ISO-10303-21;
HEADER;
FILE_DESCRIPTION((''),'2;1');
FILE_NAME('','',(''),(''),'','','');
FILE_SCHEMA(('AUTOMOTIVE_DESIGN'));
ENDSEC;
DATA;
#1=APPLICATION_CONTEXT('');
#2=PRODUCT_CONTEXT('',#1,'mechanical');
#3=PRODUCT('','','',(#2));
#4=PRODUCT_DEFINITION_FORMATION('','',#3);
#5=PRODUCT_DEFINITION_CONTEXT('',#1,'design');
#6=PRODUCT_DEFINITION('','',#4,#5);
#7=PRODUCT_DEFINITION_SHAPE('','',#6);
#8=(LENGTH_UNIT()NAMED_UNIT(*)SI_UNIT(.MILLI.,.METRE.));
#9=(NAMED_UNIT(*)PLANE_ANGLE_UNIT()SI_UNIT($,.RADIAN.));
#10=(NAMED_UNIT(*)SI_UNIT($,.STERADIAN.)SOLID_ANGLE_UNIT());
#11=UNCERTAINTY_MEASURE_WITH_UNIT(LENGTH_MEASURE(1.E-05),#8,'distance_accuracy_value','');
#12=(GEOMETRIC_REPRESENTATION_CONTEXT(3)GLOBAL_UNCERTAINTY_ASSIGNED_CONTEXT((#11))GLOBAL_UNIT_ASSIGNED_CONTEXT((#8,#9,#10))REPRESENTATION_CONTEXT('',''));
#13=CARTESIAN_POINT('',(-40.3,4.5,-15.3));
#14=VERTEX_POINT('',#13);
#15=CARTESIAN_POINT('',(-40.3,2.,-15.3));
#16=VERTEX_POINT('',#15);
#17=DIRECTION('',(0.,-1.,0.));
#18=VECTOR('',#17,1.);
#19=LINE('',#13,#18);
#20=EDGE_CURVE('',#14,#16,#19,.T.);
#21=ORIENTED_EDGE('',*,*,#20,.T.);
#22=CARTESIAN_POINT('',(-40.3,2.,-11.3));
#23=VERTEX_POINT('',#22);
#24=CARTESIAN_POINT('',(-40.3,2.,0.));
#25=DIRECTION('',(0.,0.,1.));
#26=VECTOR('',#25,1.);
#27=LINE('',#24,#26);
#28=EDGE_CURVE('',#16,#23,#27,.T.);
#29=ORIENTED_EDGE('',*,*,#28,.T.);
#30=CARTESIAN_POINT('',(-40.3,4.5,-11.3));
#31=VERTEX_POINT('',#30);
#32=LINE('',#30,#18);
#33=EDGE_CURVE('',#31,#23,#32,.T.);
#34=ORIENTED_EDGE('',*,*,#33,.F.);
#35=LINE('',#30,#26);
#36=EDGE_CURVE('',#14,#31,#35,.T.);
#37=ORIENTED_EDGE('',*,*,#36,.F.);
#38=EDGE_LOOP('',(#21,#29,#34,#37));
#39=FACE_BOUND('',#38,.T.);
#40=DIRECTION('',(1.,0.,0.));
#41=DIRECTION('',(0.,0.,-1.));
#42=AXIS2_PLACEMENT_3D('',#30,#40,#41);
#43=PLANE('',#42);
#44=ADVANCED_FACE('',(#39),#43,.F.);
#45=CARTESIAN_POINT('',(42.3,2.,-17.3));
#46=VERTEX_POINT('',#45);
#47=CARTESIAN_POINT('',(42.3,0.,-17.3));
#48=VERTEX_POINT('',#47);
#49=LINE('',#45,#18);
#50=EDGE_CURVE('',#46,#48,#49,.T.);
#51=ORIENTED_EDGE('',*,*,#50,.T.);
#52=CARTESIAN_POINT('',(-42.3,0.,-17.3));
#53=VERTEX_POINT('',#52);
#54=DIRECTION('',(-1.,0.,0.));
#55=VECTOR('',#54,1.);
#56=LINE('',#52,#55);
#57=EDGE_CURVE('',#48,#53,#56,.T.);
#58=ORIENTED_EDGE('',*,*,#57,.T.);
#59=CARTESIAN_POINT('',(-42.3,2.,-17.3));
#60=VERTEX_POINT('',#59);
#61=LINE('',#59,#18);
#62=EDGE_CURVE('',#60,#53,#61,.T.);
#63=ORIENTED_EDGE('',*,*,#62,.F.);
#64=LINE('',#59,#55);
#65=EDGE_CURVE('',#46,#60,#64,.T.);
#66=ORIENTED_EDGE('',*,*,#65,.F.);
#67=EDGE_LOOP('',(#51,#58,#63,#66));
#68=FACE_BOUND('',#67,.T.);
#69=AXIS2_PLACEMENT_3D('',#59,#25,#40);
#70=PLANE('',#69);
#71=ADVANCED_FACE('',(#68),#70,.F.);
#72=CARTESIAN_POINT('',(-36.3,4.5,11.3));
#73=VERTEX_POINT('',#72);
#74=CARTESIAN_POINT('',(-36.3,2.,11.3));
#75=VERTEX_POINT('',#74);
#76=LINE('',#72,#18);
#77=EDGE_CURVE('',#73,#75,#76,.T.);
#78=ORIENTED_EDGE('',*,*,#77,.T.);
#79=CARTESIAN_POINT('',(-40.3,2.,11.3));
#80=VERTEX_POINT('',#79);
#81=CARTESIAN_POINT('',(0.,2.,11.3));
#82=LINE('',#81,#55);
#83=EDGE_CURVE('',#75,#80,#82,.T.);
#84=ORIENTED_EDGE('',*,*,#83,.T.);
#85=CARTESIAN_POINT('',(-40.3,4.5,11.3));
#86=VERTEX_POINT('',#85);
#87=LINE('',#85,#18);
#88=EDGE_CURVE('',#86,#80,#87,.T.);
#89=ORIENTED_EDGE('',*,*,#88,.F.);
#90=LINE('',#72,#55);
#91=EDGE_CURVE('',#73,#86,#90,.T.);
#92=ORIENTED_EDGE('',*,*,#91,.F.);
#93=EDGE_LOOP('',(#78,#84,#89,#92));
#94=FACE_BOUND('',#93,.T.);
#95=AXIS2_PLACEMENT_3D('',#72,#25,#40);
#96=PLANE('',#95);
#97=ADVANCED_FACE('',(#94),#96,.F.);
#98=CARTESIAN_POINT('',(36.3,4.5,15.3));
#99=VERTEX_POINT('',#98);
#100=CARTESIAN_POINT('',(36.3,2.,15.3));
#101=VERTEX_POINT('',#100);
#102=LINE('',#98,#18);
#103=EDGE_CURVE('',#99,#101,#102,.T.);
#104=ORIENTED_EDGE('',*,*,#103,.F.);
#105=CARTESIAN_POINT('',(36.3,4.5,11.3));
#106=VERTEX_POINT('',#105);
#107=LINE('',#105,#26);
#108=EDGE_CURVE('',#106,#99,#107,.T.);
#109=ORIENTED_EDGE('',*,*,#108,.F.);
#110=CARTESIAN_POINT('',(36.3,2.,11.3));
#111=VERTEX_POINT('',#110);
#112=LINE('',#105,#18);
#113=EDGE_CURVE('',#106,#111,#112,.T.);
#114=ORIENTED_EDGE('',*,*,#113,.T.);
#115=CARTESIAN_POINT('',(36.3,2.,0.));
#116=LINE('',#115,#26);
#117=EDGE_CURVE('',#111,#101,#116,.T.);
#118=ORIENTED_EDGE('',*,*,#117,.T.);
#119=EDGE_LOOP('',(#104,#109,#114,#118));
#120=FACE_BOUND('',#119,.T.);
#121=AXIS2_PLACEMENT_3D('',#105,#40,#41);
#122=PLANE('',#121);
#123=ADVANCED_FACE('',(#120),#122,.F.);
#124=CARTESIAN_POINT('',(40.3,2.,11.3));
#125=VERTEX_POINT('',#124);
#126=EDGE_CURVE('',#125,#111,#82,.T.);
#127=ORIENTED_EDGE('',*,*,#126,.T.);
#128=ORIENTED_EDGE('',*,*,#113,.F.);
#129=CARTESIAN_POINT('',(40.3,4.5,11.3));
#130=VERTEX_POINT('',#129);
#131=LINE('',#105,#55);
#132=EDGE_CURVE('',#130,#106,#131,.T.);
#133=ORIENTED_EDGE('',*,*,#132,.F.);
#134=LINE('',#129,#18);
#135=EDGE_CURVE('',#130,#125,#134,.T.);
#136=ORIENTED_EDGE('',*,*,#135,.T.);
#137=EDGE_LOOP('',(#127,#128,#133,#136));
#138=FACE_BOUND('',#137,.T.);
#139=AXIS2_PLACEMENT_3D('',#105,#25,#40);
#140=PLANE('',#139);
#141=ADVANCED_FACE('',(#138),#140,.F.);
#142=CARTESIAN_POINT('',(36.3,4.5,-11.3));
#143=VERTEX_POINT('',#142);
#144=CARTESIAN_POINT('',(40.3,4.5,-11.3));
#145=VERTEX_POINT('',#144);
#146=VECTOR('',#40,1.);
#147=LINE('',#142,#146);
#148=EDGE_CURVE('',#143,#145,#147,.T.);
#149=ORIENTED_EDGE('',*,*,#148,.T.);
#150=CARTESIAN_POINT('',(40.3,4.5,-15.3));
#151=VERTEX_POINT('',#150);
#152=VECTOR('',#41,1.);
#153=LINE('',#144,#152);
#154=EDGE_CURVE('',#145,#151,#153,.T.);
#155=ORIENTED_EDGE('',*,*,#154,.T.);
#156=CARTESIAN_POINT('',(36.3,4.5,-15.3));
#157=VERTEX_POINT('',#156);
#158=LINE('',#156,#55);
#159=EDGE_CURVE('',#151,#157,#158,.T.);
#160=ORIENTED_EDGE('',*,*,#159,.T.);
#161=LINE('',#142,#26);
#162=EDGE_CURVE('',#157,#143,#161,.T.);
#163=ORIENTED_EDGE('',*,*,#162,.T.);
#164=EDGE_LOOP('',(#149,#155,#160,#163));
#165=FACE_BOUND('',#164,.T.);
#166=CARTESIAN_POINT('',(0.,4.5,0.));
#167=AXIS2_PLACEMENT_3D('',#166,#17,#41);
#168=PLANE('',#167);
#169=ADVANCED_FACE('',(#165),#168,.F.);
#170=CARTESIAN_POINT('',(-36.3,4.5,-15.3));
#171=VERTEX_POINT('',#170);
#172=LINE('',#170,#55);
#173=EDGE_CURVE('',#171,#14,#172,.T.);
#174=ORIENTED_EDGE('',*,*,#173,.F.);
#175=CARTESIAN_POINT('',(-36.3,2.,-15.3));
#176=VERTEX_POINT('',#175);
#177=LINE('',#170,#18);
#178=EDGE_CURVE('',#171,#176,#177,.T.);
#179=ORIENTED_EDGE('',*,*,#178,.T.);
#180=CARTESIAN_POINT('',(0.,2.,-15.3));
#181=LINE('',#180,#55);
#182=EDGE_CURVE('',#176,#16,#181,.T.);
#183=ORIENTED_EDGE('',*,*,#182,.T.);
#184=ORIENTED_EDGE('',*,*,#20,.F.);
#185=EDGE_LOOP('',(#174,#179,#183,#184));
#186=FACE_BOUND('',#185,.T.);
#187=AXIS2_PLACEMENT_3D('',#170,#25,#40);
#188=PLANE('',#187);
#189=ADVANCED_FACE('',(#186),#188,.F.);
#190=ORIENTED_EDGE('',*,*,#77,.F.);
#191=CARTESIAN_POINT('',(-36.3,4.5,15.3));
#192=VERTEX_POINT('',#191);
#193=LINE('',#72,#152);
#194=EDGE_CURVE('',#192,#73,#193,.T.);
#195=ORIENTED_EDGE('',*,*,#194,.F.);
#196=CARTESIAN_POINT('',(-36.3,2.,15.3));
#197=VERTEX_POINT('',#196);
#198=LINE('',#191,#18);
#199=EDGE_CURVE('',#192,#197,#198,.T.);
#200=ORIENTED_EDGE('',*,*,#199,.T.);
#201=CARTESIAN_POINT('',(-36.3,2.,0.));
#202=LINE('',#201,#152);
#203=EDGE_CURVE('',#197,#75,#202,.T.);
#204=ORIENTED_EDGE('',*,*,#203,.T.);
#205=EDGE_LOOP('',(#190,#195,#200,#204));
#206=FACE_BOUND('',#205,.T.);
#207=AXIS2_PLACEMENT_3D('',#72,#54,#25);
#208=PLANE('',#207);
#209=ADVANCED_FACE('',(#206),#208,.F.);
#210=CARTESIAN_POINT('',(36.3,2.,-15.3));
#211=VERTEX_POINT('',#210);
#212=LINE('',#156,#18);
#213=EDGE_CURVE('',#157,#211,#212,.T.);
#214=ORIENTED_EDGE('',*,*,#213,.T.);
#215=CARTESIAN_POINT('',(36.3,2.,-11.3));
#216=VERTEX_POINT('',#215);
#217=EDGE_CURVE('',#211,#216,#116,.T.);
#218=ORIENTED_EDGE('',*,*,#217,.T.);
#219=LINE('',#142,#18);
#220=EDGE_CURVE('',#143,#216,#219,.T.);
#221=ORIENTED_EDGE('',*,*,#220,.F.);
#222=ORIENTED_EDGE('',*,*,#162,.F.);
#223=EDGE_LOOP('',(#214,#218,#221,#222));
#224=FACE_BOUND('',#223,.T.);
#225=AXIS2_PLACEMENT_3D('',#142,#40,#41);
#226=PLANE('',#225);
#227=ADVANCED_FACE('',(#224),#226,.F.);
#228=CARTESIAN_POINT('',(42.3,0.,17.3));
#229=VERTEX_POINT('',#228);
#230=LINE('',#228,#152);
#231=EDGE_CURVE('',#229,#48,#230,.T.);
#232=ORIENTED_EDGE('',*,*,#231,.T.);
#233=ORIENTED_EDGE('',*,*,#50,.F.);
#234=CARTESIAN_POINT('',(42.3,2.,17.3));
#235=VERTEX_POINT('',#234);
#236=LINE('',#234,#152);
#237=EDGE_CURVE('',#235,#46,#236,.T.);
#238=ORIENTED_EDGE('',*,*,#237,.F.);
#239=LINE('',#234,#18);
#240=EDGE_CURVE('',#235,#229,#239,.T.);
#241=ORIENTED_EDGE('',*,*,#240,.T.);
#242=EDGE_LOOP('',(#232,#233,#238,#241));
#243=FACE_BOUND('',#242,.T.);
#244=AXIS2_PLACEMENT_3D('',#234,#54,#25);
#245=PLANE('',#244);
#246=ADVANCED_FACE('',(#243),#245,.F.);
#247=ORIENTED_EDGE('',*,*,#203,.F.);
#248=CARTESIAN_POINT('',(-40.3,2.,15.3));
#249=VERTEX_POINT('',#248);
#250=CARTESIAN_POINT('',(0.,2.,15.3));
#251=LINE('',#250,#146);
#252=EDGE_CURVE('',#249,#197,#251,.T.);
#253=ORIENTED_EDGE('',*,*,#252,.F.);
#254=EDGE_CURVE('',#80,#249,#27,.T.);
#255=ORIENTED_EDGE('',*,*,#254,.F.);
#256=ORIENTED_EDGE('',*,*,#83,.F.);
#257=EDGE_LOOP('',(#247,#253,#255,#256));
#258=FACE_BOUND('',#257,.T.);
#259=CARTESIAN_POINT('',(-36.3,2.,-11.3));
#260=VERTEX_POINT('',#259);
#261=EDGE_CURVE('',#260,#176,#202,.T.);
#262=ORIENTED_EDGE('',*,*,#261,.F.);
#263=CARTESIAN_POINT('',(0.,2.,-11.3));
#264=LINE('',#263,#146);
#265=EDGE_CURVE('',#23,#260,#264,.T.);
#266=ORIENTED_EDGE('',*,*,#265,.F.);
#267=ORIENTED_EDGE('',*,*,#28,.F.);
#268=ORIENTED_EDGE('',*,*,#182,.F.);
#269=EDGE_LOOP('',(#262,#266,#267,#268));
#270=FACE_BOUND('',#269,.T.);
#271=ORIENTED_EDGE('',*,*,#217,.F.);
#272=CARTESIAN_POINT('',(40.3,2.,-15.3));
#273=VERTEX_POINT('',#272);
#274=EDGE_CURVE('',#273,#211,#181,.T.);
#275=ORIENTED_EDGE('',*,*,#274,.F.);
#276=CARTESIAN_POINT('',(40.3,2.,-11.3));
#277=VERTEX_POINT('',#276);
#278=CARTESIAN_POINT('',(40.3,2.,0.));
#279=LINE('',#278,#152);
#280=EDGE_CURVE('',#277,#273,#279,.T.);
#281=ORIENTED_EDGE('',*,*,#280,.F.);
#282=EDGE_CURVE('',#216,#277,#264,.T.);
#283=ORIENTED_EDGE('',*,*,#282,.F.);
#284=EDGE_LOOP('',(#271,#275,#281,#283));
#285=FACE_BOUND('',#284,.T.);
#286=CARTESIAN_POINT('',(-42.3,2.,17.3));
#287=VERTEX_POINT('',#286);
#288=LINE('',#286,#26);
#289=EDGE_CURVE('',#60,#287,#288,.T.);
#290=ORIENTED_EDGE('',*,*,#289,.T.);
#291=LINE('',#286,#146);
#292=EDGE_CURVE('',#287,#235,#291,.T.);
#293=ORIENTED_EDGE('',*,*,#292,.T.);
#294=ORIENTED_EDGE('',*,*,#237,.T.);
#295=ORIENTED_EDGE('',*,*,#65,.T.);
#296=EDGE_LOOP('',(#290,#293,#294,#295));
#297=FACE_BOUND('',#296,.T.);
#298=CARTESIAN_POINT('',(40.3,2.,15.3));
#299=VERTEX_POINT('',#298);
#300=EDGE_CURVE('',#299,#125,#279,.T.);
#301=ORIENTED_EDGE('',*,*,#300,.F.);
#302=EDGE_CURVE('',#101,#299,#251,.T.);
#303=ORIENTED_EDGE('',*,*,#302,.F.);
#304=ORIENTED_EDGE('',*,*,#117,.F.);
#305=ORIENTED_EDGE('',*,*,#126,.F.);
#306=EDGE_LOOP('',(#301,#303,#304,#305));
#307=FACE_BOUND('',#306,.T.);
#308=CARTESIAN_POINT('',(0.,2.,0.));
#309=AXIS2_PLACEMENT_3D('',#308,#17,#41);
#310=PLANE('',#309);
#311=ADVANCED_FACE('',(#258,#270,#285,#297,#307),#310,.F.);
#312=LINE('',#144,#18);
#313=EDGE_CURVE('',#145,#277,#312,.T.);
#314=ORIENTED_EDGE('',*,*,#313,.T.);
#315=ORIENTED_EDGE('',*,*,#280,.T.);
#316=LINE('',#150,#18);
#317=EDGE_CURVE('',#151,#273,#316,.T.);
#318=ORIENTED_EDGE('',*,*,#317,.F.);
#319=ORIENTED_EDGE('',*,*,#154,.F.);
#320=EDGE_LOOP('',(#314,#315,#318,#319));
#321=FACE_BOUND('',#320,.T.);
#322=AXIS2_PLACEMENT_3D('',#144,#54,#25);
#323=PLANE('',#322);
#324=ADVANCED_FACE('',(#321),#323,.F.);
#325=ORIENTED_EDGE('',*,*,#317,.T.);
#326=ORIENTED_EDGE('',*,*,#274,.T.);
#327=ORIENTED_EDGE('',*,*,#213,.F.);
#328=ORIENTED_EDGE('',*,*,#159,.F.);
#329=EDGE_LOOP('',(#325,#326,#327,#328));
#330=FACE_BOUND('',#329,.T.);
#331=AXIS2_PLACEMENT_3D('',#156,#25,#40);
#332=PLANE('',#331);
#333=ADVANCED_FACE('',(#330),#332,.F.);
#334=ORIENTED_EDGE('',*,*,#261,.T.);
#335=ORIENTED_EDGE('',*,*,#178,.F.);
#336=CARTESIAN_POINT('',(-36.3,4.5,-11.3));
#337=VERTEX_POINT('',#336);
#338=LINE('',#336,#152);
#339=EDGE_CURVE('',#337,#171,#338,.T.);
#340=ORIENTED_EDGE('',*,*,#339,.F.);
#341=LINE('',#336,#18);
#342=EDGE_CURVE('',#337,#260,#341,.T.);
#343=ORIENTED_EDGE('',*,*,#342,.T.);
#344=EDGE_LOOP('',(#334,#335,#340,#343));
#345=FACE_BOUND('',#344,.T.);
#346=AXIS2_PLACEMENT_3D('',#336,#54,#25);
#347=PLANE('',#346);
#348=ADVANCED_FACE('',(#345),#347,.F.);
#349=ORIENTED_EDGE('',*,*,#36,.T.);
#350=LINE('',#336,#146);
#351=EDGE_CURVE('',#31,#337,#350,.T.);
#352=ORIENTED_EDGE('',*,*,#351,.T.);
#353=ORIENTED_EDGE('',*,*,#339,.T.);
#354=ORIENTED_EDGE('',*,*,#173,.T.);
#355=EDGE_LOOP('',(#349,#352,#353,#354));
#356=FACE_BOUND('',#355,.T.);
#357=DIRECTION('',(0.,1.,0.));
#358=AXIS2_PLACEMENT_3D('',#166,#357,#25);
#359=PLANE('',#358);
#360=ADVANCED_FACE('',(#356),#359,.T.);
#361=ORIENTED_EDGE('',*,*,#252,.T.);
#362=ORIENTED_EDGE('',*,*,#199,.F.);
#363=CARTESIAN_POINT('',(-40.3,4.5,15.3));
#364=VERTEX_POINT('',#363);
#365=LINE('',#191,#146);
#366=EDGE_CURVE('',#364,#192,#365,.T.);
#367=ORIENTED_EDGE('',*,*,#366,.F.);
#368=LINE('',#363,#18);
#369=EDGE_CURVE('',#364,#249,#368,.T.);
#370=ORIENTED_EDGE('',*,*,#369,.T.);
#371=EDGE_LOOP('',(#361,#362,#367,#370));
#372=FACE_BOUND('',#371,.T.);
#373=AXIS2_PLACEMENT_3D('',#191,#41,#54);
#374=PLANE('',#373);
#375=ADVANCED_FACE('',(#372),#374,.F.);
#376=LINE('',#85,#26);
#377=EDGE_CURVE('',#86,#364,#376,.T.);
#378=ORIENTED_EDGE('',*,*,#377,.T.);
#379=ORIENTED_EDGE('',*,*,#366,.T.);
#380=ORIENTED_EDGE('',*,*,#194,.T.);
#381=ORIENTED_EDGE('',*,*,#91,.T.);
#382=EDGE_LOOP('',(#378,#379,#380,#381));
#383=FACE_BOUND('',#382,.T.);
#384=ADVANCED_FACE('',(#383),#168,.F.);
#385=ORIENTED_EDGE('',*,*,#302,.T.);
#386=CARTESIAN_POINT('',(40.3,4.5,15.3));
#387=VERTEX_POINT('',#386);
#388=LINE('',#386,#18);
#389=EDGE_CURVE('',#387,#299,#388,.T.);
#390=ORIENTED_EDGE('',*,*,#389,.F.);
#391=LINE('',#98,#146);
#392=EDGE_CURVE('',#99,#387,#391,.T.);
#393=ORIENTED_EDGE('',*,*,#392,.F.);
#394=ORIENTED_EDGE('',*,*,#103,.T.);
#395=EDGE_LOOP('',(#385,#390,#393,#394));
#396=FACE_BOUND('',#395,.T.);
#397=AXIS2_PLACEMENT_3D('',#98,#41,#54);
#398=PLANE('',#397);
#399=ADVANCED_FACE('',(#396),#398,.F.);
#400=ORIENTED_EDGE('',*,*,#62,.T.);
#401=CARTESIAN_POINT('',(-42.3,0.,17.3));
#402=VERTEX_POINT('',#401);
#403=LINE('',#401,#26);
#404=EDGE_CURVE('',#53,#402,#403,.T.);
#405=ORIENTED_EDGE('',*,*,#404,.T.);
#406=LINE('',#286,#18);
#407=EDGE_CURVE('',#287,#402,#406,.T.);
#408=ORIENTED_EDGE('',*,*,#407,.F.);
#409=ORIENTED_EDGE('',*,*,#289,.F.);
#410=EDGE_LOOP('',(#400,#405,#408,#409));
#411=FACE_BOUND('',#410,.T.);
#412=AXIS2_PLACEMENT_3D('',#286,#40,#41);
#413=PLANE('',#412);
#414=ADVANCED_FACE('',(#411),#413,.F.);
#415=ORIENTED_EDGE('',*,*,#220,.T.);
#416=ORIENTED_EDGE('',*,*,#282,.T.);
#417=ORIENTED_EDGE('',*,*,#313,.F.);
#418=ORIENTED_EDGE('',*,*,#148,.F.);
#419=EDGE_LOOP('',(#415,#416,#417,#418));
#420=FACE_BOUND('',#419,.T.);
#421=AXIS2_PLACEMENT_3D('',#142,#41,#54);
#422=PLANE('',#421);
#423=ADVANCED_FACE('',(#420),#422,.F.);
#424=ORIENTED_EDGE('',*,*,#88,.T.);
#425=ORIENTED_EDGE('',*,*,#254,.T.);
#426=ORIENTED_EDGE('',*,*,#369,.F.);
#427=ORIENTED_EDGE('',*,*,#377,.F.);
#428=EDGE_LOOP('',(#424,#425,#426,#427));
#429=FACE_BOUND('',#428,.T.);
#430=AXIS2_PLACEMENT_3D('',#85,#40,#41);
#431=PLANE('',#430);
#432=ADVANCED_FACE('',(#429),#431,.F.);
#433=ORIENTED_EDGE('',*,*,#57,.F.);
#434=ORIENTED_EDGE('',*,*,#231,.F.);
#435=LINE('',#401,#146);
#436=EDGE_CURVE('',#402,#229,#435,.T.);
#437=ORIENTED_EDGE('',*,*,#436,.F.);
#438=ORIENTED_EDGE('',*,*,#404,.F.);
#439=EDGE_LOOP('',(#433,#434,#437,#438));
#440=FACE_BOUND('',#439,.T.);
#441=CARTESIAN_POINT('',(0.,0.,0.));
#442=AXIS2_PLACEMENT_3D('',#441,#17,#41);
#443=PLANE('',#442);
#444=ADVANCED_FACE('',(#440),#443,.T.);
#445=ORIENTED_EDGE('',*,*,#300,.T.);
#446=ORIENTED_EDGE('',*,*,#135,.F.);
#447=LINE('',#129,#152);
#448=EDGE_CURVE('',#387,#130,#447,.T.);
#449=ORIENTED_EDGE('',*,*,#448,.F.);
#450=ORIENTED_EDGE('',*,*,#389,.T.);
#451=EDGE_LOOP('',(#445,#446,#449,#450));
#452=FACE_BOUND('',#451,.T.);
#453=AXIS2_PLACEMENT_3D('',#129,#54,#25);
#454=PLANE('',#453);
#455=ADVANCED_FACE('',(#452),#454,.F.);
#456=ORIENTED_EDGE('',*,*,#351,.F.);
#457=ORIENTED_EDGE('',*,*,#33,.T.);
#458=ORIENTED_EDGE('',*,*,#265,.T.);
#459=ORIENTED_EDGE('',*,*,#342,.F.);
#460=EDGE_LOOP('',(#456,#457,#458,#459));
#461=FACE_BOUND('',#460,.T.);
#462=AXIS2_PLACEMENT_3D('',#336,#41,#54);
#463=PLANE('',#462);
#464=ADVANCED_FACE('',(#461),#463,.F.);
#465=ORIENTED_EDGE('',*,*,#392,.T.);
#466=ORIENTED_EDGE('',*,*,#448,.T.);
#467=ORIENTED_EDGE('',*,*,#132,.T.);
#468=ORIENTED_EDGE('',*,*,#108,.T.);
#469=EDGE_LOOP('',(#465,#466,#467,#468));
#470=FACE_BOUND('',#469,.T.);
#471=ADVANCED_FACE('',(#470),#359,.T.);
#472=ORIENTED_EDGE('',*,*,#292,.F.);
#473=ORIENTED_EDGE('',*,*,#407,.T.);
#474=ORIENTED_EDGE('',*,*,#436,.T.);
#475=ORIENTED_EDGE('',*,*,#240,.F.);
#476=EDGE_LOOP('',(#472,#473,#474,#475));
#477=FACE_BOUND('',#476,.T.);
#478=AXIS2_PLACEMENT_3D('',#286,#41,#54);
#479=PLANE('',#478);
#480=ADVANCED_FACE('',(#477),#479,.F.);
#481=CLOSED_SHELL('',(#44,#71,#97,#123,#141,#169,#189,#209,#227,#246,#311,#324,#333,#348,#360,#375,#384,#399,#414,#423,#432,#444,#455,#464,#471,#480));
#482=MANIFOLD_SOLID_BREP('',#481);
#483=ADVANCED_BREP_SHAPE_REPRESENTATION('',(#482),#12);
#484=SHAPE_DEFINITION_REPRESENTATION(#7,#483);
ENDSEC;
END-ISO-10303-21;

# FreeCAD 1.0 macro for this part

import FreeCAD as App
import Part
import Sketcher
Q = App.Units.Quantity


def add_polygon(sketch, points):
    """Adds a closed chain of lines whose ends are joined by coincident constraints."""
    first, n = sketch.GeometryCount, len(points)
    for a, b in zip(points, points[1:] + points[:1]):
        sketch.addGeometry(Part.LineSegment(App.Vector(*a, 0), App.Vector(*b, 0)), False)
    for i in range(n):
        sketch.addConstraint(Sketcher.Constraint("Coincident", first + i, 2, first + (i + 1) % n, 1))

doc = App.newDocument("Part")
body = doc.addObject("PartDesign::Body", "Body")

# Sketch on XZ plane
sketch1 = body.newObject("Sketcher::SketchObject", "Sketch")
sketch1.AttachmentSupport = (doc.getObject("XZ_Plane"), [""])
sketch1.MapMode = "FlatFace"
add_polygon(sketch1, [(-42.3, -17.3), (-42.3, 17.3), (42.3, 17.3), (42.3, -17.3)])  # lines 0-3
sketch1.addConstraint([
    Sketcher.Constraint("Vertical", 0),
    Sketcher.Constraint("Horizontal", 1),
    Sketcher.Constraint("Vertical", 2),
    Sketcher.Constraint("Horizontal", 3),
    Sketcher.Constraint("Symmetric", 0, 2, 2, 2, -1, 1),
    Sketcher.Constraint("DistanceX", 1, 1, 1, 2, Q("84.6 mm")),
    Sketcher.Constraint("DistanceY", 0, 1, 0, 2, Q("34.6 mm")),
])
pad1 = body.newObject("PartDesign::Pad", "Pad")
pad1.Profile = sketch1
pad1.Length = 2
pad1.Reversed = True

# Sketch on XZ plane
sketch2 = body.newObject("Sketcher::SketchObject", "Sketch001")
sketch2.AttachmentSupport = (doc.getObject("XZ_Plane"), [""])
sketch2.MapMode = "FlatFace"
add_polygon(sketch2, [(36.3, -15.3), (36.3, -11.3), (40.3, -11.3), (40.3, -15.3)])  # lines 0-3
add_polygon(sketch2, [(36.3, 11.3), (36.3, 15.3), (40.3, 15.3), (40.3, 11.3)])  # lines 4-7
add_polygon(sketch2, [(-40.3, -15.3), (-40.3, -11.3), (-36.3, -11.3), (-36.3, -15.3)])  # lines 8-11
add_polygon(sketch2, [(-40.3, 11.3), (-40.3, 15.3), (-36.3, 15.3), (-36.3, 11.3)])  # lines 12-15
sketch2.addConstraint([
    Sketcher.Constraint("Vertical", 0),
    Sketcher.Constraint("Horizontal", 1),
    Sketcher.Constraint("Vertical", 2),
    Sketcher.Constraint("Horizontal", 3),
    Sketcher.Constraint("Vertical", 4),
    Sketcher.Constraint("Horizontal", 5),
    Sketcher.Constraint("Vertical", 6),
    Sketcher.Constraint("Horizontal", 7),
    Sketcher.Constraint("Vertical", 8),
    Sketcher.Constraint("Horizontal", 9),
    Sketcher.Constraint("Vertical", 10),
    Sketcher.Constraint("Horizontal", 11),
    Sketcher.Constraint("Vertical", 12),
    Sketcher.Constraint("Horizontal", 13),
    Sketcher.Constraint("Vertical", 14),
    Sketcher.Constraint("Horizontal", 15),
    Sketcher.Constraint("Symmetric", 6, 2, 8, 2, -1, 1),
    Sketcher.Constraint("Symmetric", 4, 2, 10, 2, -1, 1),
    Sketcher.Constraint("Symmetric", 2, 2, 12, 2, -1, 1),
    Sketcher.Constraint("Symmetric", 0, 2, 14, 2, -1, 1),
    Sketcher.Constraint("Symmetric", 1, 2, 8, 2, -2),
    Sketcher.Constraint("Symmetric", 3, 2, 10, 2, -2),
    Sketcher.Constraint("Equal", 15, 0),
    Sketcher.Constraint("DistanceX", 1, 1, 1, 2, Q("4 mm")),
    Sketcher.Constraint("DistanceX", -1, 1, 0, 2, Q("36.3 mm")),
    Sketcher.Constraint("DistanceY", 0, 2, -1, 1, Q("11.3 mm")),
])
pad2 = body.newObject("PartDesign::Pad", "Pad001")
pad2.Profile = sketch2
pad2.Length = 4.5
pad2.Reversed = True

doc.recompute()
